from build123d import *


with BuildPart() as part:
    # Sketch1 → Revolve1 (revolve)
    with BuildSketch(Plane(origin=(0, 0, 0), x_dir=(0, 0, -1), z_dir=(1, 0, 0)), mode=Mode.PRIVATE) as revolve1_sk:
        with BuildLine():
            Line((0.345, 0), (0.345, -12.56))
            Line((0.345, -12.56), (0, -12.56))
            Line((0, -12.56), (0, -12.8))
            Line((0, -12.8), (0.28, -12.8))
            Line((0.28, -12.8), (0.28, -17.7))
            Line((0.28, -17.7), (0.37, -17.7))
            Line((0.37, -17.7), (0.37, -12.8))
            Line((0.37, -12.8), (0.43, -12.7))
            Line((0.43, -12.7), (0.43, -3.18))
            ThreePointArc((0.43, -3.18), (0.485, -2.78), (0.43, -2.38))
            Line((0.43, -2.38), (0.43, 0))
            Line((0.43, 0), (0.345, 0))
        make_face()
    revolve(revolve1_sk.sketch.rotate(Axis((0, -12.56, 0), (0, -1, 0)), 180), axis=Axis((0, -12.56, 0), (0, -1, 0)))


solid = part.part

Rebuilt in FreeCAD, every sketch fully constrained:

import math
import FreeCAD as App
import Part
import Sketcher
from FreeCAD import Vector

doc = App.newDocument("Part")
body = doc.addObject("PartDesign::Body", "Body")

# Sketch on YZ plane
sketch1 = body.newObject("Sketcher::SketchObject", "Sketch")
sketch1.AttachmentSupport = (doc.getObject("YZ_Plane"), [""])
sketch1.MapMode = "FlatFace"
sketch1.addGeometry(Part.LineSegment(Vector(0, -0.34, 0), Vector(-12.56, -0.34, 0)), False)
sketch1.addGeometry(Part.LineSegment(Vector(-12.56, -0.34, 0), Vector(-12.56, 0, 0)), False)
sketch1.addGeometry(Part.LineSegment(Vector(-12.56, 0, 0), Vector(-12.8, 0, 0)), False)
sketch1.addGeometry(Part.LineSegment(Vector(-12.8, 0, 0), Vector(-12.8, -0.28, 0)), False)
sketch1.addGeometry(Part.LineSegment(Vector(-12.8, -0.28, 0), Vector(-17.7, -0.28, 0)), False)
sketch1.addGeometry(Part.LineSegment(Vector(-17.7, -0.28, 0), Vector(-17.7, -0.37, 0)), False)
sketch1.addGeometry(Part.LineSegment(Vector(-17.7, -0.37, 0), Vector(-12.8, -0.37, 0)), False)
sketch1.addGeometry(Part.LineSegment(Vector(-12.8, -0.37, 0), Vector(-12.7, -0.43, 0)), False)
sketch1.addGeometry(Part.LineSegment(Vector(-12.7, -0.43, 0), Vector(-3.18, -0.43, 0)), False)
sketch1.addGeometry(Part.ArcOfCircle(Part.Circle(Vector(-2.78, 1, 0), Vector(0, 0, 1), 1.48), math.radians(-106), math.radians(-74)), False)
sketch1.addGeometry(Part.LineSegment(Vector(-2.38, -0.43, 0), Vector(0, -0.43, 0)), False)
sketch1.addGeometry(Part.LineSegment(Vector(0, -0.43, 0), Vector(0, -0.34, 0)), False)
sketch1.addConstraint(Sketcher.Constraint("Coincident", 0, 2, 1, 1))
sketch1.addConstraint(Sketcher.Constraint("Coincident", 1, 2, 2, 1))
sketch1.addConstraint(Sketcher.Constraint("Coincident", 2, 2, 3, 1))
sketch1.addConstraint(Sketcher.Constraint("Coincident", 3, 2, 4, 1))
sketch1.addConstraint(Sketcher.Constraint("Coincident", 4, 2, 5, 1))
sketch1.addConstraint(Sketcher.Constraint("Coincident", 5, 2, 6, 1))
sketch1.addConstraint(Sketcher.Constraint("Coincident", 6, 2, 7, 1))
sketch1.addConstraint(Sketcher.Constraint("Coincident", 7, 2, 8, 1))
sketch1.addConstraint(Sketcher.Constraint("Coincident", 8, 2, 9, 1))
sketch1.addConstraint(Sketcher.Constraint("Coincident", 9, 2, 10, 1))
sketch1.addConstraint(Sketcher.Constraint("Coincident", 10, 2, 11, 1))
sketch1.addConstraint(Sketcher.Constraint("Coincident", 11, 2, 0, 1))
sketch1.addConstraint(Sketcher.Constraint("Horizontal", 0))
sketch1.addConstraint(Sketcher.Constraint("Vertical", 1))
sketch1.addConstraint(Sketcher.Constraint("Horizontal", 2))
sketch1.addConstraint(Sketcher.Constraint("Vertical", 3))
sketch1.addConstraint(Sketcher.Constraint("Horizontal", 4))
sketch1.addConstraint(Sketcher.Constraint("Vertical", 5))
sketch1.addConstraint(Sketcher.Constraint("Horizontal", 6))
sketch1.addConstraint(Sketcher.Constraint("Horizontal", 8))
sketch1.addConstraint(Sketcher.Constraint("Horizontal", 10))
sketch1.addConstraint(Sketcher.Constraint("Vertical", 11))
sketch1.addConstraint(Sketcher.Constraint("PointOnObject", 1, 2, -1))
sketch1.addConstraint(Sketcher.Constraint("PointOnObject", 10, 2, -2))
sketch1.addConstraint(Sketcher.Constraint("Horizontal", 8, 2, 9, 2))
sketch1.addConstraint(Sketcher.Constraint("Vertical", 3, 2, 6, 2))
sketch1.addConstraint(Sketcher.Constraint("DistanceX", 4, 2, 4, 1, 4.9))
sketch1.addConstraint(Sketcher.Constraint("DistanceX", 0, 2, 0, 1, 12.56))
sketch1.addConstraint(Sketcher.Constraint("DistanceX", 2, 2, 2, 1, 0.24))
sketch1.addConstraint(Sketcher.Constraint("DistanceX", 8, 1, 8, 2, 9.52))
sketch1.addConstraint(Sketcher.Constraint("DistanceX", 10, 1, 10, 2, 2.38))
sketch1.addConstraint(Sketcher.Constraint("DistanceY", 3, 2, 3, 1, 0.28))
sketch1.addConstraint(Sketcher.Constraint("DistanceY", 5, 2, 5, 1, 0.09))
sketch1.addConstraint(Sketcher.Constraint("DistanceX", 7, 2, -1, 1, 12.7))
sketch1.addConstraint(Sketcher.Constraint("DistanceY", 1, 1, 1, 2, 0.345))
sketch1.addConstraint(Sketcher.Constraint("DistanceY", 11, 1, 11, 2, 0.085))
sketch1.addConstraint(Sketcher.Constraint("Radius", 9, 1.482045))
revolution = body.newObject("PartDesign::Revolution", "Revolution")
revolution.Profile = sketch1
revolution.ReferenceAxis = (sketch1, ["H_Axis"])
revolution.Angle = 360

doc.recompute()
